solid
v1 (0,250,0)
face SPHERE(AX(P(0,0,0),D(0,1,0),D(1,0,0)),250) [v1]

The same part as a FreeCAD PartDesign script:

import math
import FreeCAD as App
import Part
import Sketcher

V = App.Vector

doc = App.newDocument("Part")
body = doc.addObject("PartDesign::Body", "Body")

# Sketch on XY plane
sketch1 = doc.addObject("Sketcher::SketchObject", "Sketch")
body.addObject(sketch1)
sketch1.AttachmentSupport = (doc.XY_Plane, [""])
sketch1.MapMode = "FlatFace"
sketch1.addGeometry(Part.LineSegment(V(0, 250, 0), V(0, -250, 0)), False)
sketch1.addGeometry(Part.ArcOfCircle(Part.Circle(V(0, 0, 0), V(0, 0, 1), 250), math.radians(-90), math.radians(90)), False)
sketch1.addConstraint(Sketcher.Constraint("Coincident", 0, 1, 1, 2))
sketch1.addConstraint(Sketcher.Constraint("Coincident", 1, 1, 0, 2))
sketch1.addConstraint(Sketcher.Constraint("Vertical", 0))
sketch1.addConstraint(Sketcher.Constraint("Coincident", 1, 3, -1, 1))
sketch1.addConstraint(Sketcher.Constraint("PointOnObject", 0, 1, -2))
sketch1.addConstraint(Sketcher.Constraint("Radius", 1, 250.0))
revolution = doc.addObject("PartDesign::Revolution", "Revolution")
body.addObject(revolution)
revolution.Profile = sketch1
revolution.ReferenceAxis = (sketch1, ["V_Axis"])
revolution.Angle = 360

doc.recompute()
